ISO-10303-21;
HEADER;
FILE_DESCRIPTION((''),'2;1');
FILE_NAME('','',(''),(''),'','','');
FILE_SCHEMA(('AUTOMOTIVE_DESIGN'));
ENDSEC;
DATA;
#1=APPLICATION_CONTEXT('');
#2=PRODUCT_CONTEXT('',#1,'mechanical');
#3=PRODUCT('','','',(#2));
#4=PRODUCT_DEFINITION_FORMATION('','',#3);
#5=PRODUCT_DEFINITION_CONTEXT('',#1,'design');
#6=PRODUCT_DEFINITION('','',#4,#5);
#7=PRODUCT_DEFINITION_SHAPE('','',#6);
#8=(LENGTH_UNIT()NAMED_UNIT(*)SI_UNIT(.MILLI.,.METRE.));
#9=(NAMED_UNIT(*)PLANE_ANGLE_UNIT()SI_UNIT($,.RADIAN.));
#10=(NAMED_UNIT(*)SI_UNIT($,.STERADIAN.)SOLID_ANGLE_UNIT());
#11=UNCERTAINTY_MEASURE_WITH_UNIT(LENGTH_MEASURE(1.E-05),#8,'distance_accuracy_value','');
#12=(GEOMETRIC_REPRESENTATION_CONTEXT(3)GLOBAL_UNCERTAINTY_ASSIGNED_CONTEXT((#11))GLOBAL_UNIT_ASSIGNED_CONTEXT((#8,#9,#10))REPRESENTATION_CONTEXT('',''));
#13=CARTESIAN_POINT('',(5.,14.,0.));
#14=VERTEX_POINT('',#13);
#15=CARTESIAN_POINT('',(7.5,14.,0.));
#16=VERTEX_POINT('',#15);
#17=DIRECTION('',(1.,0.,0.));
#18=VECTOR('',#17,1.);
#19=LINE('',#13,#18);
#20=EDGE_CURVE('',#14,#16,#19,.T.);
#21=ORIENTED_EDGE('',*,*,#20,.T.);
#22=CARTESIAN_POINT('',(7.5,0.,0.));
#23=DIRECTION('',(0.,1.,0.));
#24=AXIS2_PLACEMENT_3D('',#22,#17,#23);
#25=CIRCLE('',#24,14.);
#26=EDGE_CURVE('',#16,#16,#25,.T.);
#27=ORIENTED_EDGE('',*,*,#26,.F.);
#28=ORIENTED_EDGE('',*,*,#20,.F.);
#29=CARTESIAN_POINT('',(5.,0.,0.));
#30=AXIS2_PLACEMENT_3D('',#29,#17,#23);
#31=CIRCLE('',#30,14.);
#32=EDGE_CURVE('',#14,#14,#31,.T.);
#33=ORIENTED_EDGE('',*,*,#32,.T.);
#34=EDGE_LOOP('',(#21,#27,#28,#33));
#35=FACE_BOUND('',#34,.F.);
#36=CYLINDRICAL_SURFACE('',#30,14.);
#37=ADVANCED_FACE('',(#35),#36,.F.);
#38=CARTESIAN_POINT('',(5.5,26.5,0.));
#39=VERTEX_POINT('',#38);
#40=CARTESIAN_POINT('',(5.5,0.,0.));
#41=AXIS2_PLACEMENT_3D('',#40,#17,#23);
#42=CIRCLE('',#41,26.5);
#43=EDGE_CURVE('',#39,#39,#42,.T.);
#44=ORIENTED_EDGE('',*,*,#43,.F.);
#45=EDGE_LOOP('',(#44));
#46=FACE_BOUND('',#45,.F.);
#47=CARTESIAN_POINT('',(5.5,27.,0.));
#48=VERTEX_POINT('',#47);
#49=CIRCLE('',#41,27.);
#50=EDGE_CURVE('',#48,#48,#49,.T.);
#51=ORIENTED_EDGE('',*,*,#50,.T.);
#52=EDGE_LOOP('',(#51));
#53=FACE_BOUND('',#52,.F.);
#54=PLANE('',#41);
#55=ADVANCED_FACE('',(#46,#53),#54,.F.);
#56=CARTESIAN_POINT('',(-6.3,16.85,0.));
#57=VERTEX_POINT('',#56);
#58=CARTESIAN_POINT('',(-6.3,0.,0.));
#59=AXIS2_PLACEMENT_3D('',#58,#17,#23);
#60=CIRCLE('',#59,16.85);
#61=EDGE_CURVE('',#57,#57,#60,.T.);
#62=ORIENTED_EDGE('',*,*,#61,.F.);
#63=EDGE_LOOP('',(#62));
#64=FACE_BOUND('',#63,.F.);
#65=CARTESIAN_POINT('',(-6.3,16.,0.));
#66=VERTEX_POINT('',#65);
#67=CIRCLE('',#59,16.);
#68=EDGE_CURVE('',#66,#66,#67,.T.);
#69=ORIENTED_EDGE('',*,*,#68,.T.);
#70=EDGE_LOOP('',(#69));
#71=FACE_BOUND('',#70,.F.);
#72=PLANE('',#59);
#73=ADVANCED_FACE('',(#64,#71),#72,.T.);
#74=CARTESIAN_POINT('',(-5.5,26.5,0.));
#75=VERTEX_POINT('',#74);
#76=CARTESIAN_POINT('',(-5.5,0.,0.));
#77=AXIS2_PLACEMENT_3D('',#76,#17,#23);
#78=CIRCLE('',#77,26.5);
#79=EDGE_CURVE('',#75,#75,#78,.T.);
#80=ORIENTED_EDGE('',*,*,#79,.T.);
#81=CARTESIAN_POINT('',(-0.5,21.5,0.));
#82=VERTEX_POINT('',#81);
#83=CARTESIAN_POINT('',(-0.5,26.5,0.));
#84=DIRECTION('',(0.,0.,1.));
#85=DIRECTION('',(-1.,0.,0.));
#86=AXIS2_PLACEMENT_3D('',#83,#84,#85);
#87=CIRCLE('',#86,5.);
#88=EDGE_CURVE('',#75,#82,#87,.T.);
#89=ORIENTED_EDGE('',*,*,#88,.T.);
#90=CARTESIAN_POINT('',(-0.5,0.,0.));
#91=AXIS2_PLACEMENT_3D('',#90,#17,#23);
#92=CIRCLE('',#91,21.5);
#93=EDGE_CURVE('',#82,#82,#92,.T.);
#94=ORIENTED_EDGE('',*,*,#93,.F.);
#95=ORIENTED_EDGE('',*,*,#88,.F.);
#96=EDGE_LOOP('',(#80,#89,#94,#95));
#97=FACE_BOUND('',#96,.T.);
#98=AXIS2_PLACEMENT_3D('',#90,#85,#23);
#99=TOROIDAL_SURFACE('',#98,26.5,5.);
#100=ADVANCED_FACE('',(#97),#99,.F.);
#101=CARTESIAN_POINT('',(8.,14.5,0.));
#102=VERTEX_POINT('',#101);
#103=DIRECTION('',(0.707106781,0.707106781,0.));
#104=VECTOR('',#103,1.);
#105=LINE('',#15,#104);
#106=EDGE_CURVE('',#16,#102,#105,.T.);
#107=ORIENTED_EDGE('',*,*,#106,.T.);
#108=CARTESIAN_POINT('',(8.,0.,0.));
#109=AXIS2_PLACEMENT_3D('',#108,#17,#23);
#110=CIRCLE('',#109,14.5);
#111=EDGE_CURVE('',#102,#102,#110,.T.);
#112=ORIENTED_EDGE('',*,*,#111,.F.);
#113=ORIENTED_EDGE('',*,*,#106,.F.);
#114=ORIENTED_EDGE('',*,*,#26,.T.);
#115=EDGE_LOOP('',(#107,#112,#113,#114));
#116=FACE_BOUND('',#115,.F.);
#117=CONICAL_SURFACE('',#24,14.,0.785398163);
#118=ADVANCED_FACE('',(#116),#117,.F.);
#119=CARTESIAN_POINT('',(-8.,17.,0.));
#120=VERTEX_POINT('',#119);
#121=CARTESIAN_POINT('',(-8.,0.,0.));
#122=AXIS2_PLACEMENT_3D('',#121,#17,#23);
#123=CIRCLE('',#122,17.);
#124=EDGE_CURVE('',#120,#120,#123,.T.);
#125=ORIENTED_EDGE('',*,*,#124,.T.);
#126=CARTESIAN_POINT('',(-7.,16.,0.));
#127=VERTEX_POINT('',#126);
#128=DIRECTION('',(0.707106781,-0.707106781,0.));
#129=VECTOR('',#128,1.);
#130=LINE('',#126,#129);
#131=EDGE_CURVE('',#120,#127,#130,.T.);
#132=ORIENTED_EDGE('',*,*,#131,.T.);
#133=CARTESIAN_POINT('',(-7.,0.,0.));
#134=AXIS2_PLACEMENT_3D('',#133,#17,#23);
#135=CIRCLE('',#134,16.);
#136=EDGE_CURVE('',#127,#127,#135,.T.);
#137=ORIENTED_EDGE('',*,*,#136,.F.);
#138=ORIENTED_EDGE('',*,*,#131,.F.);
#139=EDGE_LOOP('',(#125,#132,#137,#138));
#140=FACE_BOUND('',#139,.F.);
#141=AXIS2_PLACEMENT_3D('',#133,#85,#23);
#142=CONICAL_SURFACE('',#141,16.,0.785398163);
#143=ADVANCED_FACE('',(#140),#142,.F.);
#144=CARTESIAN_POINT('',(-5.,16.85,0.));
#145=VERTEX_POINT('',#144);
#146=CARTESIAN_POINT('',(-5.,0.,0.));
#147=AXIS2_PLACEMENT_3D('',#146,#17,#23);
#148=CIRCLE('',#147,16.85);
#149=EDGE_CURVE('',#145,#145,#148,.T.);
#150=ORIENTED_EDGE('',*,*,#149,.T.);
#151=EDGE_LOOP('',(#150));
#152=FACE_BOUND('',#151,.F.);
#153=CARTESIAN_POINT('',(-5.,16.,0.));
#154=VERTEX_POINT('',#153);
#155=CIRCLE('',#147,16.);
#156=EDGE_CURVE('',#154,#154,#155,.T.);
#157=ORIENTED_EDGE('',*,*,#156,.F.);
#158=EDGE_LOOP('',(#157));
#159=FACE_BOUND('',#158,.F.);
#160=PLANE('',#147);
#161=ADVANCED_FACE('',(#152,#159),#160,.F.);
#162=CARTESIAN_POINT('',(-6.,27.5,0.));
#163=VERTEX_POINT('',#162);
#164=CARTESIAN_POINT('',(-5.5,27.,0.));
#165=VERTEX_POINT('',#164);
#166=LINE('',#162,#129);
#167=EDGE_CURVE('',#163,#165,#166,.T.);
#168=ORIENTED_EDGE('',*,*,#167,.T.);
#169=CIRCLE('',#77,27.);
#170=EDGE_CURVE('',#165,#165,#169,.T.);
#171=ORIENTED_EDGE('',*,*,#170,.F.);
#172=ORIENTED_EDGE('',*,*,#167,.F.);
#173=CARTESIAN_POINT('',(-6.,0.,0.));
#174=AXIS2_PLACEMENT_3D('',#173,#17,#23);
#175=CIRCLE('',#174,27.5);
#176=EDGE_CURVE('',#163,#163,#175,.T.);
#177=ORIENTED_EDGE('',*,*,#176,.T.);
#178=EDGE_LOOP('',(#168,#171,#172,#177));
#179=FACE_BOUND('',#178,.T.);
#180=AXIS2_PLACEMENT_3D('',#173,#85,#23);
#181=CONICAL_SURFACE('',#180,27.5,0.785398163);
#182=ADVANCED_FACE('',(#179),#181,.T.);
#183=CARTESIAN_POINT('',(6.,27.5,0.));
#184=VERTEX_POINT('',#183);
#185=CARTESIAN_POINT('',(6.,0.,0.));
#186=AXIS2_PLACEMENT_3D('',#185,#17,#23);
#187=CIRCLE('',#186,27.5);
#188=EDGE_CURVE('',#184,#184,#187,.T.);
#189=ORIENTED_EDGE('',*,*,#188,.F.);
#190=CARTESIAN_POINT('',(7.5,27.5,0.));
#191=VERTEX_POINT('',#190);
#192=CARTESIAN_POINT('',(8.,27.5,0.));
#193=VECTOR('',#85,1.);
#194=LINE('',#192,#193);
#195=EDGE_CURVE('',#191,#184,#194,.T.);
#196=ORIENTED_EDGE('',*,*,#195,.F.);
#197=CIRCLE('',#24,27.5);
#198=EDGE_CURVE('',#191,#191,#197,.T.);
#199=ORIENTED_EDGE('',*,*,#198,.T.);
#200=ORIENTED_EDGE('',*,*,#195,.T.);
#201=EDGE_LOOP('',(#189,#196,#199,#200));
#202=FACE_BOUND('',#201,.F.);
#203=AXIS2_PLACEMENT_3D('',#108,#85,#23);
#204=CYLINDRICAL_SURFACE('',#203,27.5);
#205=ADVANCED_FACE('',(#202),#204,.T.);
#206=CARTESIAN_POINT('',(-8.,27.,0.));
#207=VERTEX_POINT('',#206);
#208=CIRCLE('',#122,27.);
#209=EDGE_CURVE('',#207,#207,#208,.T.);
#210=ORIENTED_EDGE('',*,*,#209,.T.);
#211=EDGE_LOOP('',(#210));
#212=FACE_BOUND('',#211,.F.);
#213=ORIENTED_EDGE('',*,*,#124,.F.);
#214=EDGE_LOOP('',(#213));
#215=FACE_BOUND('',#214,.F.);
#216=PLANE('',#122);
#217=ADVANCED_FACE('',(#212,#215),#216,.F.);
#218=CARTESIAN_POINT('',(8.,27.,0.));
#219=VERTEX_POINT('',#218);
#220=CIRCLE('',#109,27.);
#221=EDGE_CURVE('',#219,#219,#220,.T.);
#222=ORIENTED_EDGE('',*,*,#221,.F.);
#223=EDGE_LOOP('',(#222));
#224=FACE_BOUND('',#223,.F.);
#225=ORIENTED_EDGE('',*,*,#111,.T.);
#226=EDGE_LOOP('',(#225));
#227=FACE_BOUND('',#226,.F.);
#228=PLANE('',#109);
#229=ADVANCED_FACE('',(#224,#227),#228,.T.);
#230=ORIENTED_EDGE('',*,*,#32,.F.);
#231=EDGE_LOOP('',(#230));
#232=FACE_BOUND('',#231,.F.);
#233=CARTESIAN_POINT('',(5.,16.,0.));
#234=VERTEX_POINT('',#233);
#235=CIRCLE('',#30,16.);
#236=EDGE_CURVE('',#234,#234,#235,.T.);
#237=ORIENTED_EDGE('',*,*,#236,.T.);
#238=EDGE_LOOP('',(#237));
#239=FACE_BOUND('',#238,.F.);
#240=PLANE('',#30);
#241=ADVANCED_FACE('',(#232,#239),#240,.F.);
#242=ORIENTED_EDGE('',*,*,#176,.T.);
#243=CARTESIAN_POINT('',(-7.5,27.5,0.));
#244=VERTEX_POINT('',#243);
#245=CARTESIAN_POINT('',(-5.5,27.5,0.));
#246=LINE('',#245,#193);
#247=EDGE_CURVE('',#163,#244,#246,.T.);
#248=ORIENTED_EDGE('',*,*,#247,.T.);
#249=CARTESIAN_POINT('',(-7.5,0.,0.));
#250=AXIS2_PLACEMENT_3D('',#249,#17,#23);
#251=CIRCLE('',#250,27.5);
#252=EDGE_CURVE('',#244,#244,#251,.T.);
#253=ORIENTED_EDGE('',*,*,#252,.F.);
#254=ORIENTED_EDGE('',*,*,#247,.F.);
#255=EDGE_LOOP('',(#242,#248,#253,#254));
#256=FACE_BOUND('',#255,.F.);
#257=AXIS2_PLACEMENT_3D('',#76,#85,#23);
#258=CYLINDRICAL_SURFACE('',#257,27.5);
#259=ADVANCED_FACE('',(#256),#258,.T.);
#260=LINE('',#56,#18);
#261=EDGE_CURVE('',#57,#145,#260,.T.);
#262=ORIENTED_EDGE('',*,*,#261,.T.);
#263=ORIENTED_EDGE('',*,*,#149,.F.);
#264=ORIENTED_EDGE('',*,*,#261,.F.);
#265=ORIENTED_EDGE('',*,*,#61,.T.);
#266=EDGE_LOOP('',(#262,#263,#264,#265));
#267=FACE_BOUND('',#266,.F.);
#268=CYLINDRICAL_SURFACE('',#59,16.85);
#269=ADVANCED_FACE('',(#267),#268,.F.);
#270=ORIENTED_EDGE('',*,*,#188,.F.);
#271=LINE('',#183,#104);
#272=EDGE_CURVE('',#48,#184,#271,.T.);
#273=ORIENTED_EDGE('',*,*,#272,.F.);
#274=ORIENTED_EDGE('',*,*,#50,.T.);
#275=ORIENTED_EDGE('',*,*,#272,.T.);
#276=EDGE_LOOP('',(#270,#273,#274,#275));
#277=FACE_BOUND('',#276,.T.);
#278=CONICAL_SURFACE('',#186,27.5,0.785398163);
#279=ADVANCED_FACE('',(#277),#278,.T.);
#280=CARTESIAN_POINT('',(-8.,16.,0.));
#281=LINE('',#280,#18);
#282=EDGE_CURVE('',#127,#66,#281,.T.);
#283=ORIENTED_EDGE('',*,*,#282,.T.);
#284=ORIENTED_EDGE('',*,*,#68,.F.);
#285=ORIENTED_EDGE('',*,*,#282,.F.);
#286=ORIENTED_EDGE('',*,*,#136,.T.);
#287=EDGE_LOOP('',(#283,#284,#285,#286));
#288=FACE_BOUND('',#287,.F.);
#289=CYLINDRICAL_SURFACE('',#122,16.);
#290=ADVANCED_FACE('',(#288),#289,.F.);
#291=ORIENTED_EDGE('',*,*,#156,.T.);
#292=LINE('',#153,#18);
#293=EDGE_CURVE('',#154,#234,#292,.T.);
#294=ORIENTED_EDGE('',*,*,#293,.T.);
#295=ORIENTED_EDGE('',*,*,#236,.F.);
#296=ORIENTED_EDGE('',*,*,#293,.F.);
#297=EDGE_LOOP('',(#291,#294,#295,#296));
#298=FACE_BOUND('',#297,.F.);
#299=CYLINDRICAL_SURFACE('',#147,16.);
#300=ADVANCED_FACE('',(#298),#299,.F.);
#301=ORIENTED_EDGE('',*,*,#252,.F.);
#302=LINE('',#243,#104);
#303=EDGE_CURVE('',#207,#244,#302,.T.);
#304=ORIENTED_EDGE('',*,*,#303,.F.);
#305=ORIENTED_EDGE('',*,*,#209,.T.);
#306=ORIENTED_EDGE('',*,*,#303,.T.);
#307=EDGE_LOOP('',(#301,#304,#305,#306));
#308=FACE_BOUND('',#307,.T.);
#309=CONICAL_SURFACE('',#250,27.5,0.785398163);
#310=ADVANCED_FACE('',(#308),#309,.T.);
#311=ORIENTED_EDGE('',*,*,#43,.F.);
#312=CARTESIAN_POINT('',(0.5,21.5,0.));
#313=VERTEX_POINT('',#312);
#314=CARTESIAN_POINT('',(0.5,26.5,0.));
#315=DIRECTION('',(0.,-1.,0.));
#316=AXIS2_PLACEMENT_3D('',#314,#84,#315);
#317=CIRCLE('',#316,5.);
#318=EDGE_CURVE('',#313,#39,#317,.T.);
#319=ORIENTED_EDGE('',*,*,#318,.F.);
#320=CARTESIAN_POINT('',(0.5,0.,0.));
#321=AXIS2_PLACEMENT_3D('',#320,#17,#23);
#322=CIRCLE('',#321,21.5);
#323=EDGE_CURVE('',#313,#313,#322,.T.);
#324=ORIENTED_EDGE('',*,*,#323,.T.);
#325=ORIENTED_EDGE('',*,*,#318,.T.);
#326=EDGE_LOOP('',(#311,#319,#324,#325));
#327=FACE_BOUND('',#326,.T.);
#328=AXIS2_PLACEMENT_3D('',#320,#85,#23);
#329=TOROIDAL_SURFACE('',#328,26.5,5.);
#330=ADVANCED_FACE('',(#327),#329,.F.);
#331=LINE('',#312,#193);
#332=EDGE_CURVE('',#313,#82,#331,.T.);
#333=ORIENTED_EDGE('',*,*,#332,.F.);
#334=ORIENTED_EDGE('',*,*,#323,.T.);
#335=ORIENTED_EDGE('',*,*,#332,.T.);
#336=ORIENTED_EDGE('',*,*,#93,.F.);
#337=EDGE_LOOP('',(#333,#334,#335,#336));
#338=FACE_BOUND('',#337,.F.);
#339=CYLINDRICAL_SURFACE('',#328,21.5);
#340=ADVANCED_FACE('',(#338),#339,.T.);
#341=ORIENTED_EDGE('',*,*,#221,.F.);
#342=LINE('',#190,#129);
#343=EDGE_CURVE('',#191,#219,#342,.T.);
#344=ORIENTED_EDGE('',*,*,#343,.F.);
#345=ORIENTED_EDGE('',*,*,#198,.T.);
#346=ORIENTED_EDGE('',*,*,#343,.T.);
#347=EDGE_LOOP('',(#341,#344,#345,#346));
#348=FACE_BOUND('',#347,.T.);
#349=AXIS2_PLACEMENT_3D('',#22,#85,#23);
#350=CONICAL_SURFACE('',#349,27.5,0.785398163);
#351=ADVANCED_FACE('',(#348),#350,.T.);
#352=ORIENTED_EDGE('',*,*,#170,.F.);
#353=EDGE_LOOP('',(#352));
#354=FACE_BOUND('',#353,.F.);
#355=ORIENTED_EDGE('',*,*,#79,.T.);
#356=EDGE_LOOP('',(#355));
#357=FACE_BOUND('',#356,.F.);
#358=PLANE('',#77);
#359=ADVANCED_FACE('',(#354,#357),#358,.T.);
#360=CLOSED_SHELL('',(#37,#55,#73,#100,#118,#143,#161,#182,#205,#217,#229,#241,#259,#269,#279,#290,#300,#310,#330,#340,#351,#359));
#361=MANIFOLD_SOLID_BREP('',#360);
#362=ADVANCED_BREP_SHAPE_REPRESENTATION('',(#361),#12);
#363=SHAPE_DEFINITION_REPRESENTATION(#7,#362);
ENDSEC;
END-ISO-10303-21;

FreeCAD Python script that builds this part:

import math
import FreeCAD as App
import Part
import Sketcher

V = App.Vector
Q = App.Units.Quantity


def edges_at(feature, points):
    """Names of the edges that pass closest to the given points."""
    edges = feature.Shape.Edges
    near = lambda p: min(range(len(edges)), key=lambda i: edges[i].distToShape(Part.Vertex(*p))[0])
    return sorted({f"Edge{near(p) + 1}" for p in points})

doc = App.newDocument("Part")
body = doc.addObject("PartDesign::Body", "Body")

# Sketch on XY plane
sketch1 = doc.addObject("Sketcher::SketchObject", "Sketch")
body.addObject(sketch1)
sketch1.AttachmentSupport = (doc.XY_Plane, [""])
sketch1.MapMode = "FlatFace"
sketch1.addGeometry([
    Part.LineSegment(V(-8, 27.5, 0), V(-8, 16, 0)),  # 0
    Part.LineSegment(V(-8, 16, 0), V(-6.3, 16, 0)),  # 1
    Part.LineSegment(V(-6.3, 16, 0), V(-6.3, 16.9, 0)),  # 2
    Part.LineSegment(V(-6.3, 16.9, 0), V(-5, 16.9, 0)),  # 3
    Part.LineSegment(V(-5, 16.9, 0), V(-5, 16, 0)),  # 4
    Part.LineSegment(V(-5, 16, 0), V(5, 16, 0)),  # 5
    Part.LineSegment(V(5, 16, 0), V(5, 14, 0)),  # 6
    Part.LineSegment(V(5, 14, 0), V(8, 14, 0)),  # 7
    Part.LineSegment(V(8, 14, 0), V(8, 27.5, 0)),  # 8
    Part.LineSegment(V(8, 27.5, 0), V(5.5, 27.5, 0)),  # 9
    Part.LineSegment(V(5.5, 27.5, 0), V(5.5, 26.5, 0)),  # 10
    Part.ArcOfCircle(Part.Circle(V(0.5, 26.5, 0), V(0, 0, 1), 5), math.radians(-90), math.radians(0)),  # 11
    Part.LineSegment(V(0.5, 21.5, 0), V(-0.5, 21.5, 0)),  # 12
    Part.ArcOfCircle(Part.Circle(V(-0.5, 26.5, 0), V(0, 0, 1), 5), math.radians(180), math.radians(270)),  # 13
    Part.LineSegment(V(-5.5, 26.5, 0), V(-5.5, 27.5, 0)),  # 14
    Part.LineSegment(V(-5.5, 27.5, 0), V(-8, 27.5, 0)),  # 15
], False)
sketch1.addConstraint([
    Sketcher.Constraint("Coincident", 0, 2, 1, 1),
    Sketcher.Constraint("Coincident", 1, 2, 2, 1),
    Sketcher.Constraint("Coincident", 2, 2, 3, 1),
    Sketcher.Constraint("Coincident", 3, 2, 4, 1),
    Sketcher.Constraint("Coincident", 4, 2, 5, 1),
    Sketcher.Constraint("Coincident", 5, 2, 6, 1),
    Sketcher.Constraint("Coincident", 6, 2, 7, 1),
    Sketcher.Constraint("Coincident", 7, 2, 8, 1),
    Sketcher.Constraint("Coincident", 8, 2, 9, 1),
    Sketcher.Constraint("Coincident", 9, 2, 10, 1),
    Sketcher.Constraint("Tangent", 10, 2, 11, 2),
    Sketcher.Constraint("Tangent", 11, 1, 12, 1),
    Sketcher.Constraint("Tangent", 12, 2, 13, 2),
    Sketcher.Constraint("Tangent", 13, 1, 14, 1),
    Sketcher.Constraint("Coincident", 14, 2, 15, 1),
    Sketcher.Constraint("Coincident", 15, 2, 0, 1),
    Sketcher.Constraint("Vertical", 0),
    Sketcher.Constraint("Horizontal", 1),
    Sketcher.Constraint("Vertical", 2),
    Sketcher.Constraint("Horizontal", 3),
    Sketcher.Constraint("Vertical", 4),
    Sketcher.Constraint("Horizontal", 5),
    Sketcher.Constraint("Vertical", 6),
    Sketcher.Constraint("Horizontal", 7),
    Sketcher.Constraint("Vertical", 8),
    Sketcher.Constraint("Horizontal", 9),
    Sketcher.Constraint("Vertical", 10),
    Sketcher.Constraint("Horizontal", 12),
    Sketcher.Constraint("Vertical", 14),
    Sketcher.Constraint("Horizontal", 15),
    Sketcher.Constraint("Equal", 11, 13),
    Sketcher.Constraint("Symmetric", 9, 2, 14, 2, -2),
    Sketcher.Constraint("Horizontal", 1, 2, 4, 2),
    Sketcher.Constraint("Equal", 9, 15),
    Sketcher.Constraint("Equal", 12, 10),
    Sketcher.Constraint("Radius", 11, Q("5 mm")),
    Sketcher.Constraint("DistanceX", 5, 1, 5, 2, Q("10 mm")),
    Sketcher.Constraint("DistanceX", 3, 1, 3, 2, Q("1.3 mm")),
    Sketcher.Constraint("DistanceX", 9, 2, 9, 1, Q("2.5 mm")),
    Sketcher.Constraint("DistanceY", -1, 1, 0, 2, Q("16 mm")),
    Sketcher.Constraint("DistanceX", 3, 2, -1, 1, Q("5 mm")),
    Sketcher.Constraint("DistanceX", 4, 2, 7, 2, Q("13 mm")),
    Sketcher.Constraint("DistanceY", 6, 2, 6, 1, Q("2 mm")),
    Sketcher.Constraint("DistanceY", 0, 2, 0, 1, Q("11.5 mm")),
    Sketcher.Constraint("DistanceY", 2, 1, 2, 2, Q("0.85 mm")),
])
revolution = doc.addObject("PartDesign::Revolution", "Revolution")
body.addObject(revolution)
revolution.Profile = sketch1
revolution.ReferenceAxis = (sketch1, ["H_Axis"])
revolution.Angle = 360
doc.recompute()

chamfer = doc.addObject("PartDesign::Chamfer", "Chamfer")
body.addObject(chamfer)
chamfer.Base = (revolution, edges_at(revolution, [(-8, -16, 0)]))
chamfer.Size = 1
doc.recompute()

chamfer2 = doc.addObject("PartDesign::Chamfer", "Chamfer001")
body.addObject(chamfer2)
chamfer2.Base = (chamfer, edges_at(chamfer, [
    (-8, -27.5, 0),
    (-5.5, -27.5, 0),
    (5.5, -27.5, 0),
    (8, -27.5, 0),
    (8, -14, 0),
]))
chamfer2.Size = 0.5

doc.recompute()
